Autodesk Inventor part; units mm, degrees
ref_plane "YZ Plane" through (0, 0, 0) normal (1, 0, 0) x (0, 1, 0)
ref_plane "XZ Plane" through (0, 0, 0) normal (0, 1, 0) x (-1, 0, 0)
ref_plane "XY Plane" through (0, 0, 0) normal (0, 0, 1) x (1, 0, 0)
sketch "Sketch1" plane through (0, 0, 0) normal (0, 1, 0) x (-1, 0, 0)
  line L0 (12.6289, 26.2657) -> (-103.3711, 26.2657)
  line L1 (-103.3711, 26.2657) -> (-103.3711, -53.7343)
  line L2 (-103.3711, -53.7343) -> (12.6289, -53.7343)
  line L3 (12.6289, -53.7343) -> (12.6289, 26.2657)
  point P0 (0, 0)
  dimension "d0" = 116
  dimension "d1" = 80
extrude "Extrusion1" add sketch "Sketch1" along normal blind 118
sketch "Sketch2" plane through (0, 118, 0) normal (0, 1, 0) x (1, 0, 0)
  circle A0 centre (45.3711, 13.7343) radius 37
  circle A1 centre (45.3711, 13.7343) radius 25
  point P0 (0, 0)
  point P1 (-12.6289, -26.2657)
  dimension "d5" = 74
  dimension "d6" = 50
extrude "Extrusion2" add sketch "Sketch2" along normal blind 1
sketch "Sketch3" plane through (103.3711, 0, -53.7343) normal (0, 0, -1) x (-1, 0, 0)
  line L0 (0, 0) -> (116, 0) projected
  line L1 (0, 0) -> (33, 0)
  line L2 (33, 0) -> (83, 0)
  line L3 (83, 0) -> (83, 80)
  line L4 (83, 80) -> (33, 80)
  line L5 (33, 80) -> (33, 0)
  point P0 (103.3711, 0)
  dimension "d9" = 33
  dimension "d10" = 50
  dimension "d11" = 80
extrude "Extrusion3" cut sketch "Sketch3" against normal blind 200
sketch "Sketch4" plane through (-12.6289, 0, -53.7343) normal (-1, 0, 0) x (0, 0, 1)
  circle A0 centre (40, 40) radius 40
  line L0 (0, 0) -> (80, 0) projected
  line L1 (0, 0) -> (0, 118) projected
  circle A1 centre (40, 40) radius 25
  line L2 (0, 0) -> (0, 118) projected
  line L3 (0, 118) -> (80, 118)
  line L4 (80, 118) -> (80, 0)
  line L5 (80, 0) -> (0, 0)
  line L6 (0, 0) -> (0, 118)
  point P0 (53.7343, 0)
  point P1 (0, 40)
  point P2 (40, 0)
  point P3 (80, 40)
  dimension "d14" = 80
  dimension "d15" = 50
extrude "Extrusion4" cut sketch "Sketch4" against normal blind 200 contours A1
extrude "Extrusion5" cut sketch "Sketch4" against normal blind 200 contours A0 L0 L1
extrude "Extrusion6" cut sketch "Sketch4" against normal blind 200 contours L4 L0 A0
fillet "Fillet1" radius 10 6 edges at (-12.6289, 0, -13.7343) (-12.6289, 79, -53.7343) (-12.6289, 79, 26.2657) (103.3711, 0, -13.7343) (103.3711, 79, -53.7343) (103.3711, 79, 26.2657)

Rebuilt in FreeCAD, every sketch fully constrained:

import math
import FreeCAD as App
import Part
import Sketcher
from FreeCAD import Vector
Q = App.Units.Quantity


def edges_at(feature, points):
    """Names of the edges that pass closest to the given points."""
    edges = feature.Shape.Edges
    near = lambda p: min(range(len(edges)), key=lambda i: edges[i].distToShape(Part.Vertex(*p))[0])
    return sorted({f"Edge{near(p) + 1}" for p in points})

doc = App.newDocument("Part")
body = doc.addObject("PartDesign::Body", "Body")

# Sketch on XZ plane
sketch1 = body.newObject("Sketcher::SketchObject", "Sketch")
sketch1.AttachmentSupport = (doc.getObject("XZ_Plane"), [""])
sketch1.MapMode = "FlatFace"
sketch1.addGeometry([
    Part.LineSegment(Vector(-13, -54, 0), Vector(-13, 26, 0)),
    Part.LineSegment(Vector(-13, 26, 0), Vector(103, 26, 0)),
    Part.LineSegment(Vector(103, 26, 0), Vector(103, -54, 0)),
    Part.LineSegment(Vector(103, -54, 0), Vector(-13, -54, 0)),
], False)
sketch1.addConstraint([
    Sketcher.Constraint("Coincident", 0, 2, 1, 1),
    Sketcher.Constraint("Coincident", 1, 2, 2, 1),
    Sketcher.Constraint("Coincident", 2, 2, 3, 1),
    Sketcher.Constraint("Coincident", 3, 2, 0, 1),
    Sketcher.Constraint("Vertical", 0),
    Sketcher.Constraint("Horizontal", 1),
    Sketcher.Constraint("Vertical", 2),
    Sketcher.Constraint("Horizontal", 3),
    Sketcher.Constraint("DistanceX", 1, 1, 1, 2, Q("116 mm")),
    Sketcher.Constraint("DistanceY", 0, 1, 0, 2, Q("80 mm")),
    Sketcher.Constraint("DistanceX", 0, 2, -1, 1, Q("12.629 mm")),
    Sketcher.Constraint("DistanceY", -1, 1, 0, 2, Q("26.2657 mm")),
])
pad1 = body.newObject("PartDesign::Pad", "Pad")
pad1.Profile = sketch1
pad1.Length = 118
pad1.Reversed = True

# Sketch on XZ plane
sketch2 = body.newObject("Sketcher::SketchObject", "Sketch001")
sketch2.AttachmentSupport = (doc.getObject("XZ_Plane"), [""])
sketch2.MapMode = "FlatFace"
sketch2.AttachmentOffset = App.Placement(Vector(0, 0, -118), App.Rotation())
sketch2.addGeometry([
    Part.Circle(Vector(45, -14, 0), Vector(0, 0, 1), 37),
    Part.Circle(Vector(45, -14, 0), Vector(0, 0, 1), 25),
], False)
sketch2.addConstraint([
    Sketcher.Constraint("Coincident", 1, 3, 0, 3),
    Sketcher.Constraint("Diameter", 0, Q("74 mm")),
    Sketcher.Constraint("Diameter", 1, Q("50 mm")),
    Sketcher.Constraint("DistanceX", -1, 1, 0, 3, Q("45.371 mm")),
    Sketcher.Constraint("DistanceY", 0, 3, -1, 1, Q("13.7343 mm")),
])
pad2 = body.newObject("PartDesign::Pad", "Pad001")
pad2.Profile = sketch2
pad2.Length = 1
pad2.Reversed = True

# Sketch on XY plane
sketch3 = body.newObject("Sketcher::SketchObject", "Sketch002")
sketch3.AttachmentSupport = (doc.getObject("XY_Plane"), [""])
sketch3.MapMode = "FlatFace"
sketch3.AttachmentOffset = App.Placement(Vector(0, 0, -53.7343), App.Rotation())
sketch3.addGeometry([
    Part.LineSegment(Vector(70, 80, 0), Vector(70, 0, 0)),
    Part.LineSegment(Vector(70, 0, 0), Vector(20, 0, 0)),
    Part.LineSegment(Vector(20, 0, 0), Vector(20, 80, 0)),
    Part.LineSegment(Vector(20, 80, 0), Vector(70, 80, 0)),
], False)
sketch3.addConstraint([
    Sketcher.Constraint("Coincident", 0, 2, 1, 1),
    Sketcher.Constraint("Coincident", 1, 2, 2, 1),
    Sketcher.Constraint("Coincident", 2, 2, 3, 1),
    Sketcher.Constraint("Coincident", 3, 2, 0, 1),
    Sketcher.Constraint("Vertical", 0),
    Sketcher.Constraint("Horizontal", 1),
    Sketcher.Constraint("Vertical", 2),
    Sketcher.Constraint("Horizontal", 3),
    Sketcher.Constraint("PointOnObject", 0, 2, -1),
    Sketcher.Constraint("DistanceX", 1, 2, 1, 1, Q("50 mm")),
    Sketcher.Constraint("DistanceY", 0, 2, 0, 1, Q("80 mm")),
    Sketcher.Constraint("DistanceX", -1, 1, 0, 2, Q("70.371 mm")),
])
pocket1 = body.newObject("PartDesign::Pocket", "Pocket")
pocket1.Profile = sketch3
pocket1.Length = 200
pocket1.Reversed = True

# Sketch on YZ plane
sketch4 = body.newObject("Sketcher::SketchObject", "Sketch003")
sketch4.AttachmentSupport = (doc.getObject("YZ_Plane"), [""])
sketch4.MapMode = "FlatFace"
sketch4.AttachmentOffset = App.Placement(Vector(0, 0, -12.6289), App.Rotation())
sketch4.addGeometry(Part.Circle(Vector(40, -14, 0), Vector(0, 0, 1), 25), False)
sketch4.addConstraint([
    Sketcher.Constraint("Diameter", 0, Q("50 mm")),
    Sketcher.Constraint("DistanceX", -1, 1, 0, 3, Q("40 mm")),
    Sketcher.Constraint("DistanceY", 0, 3, -1, 1, Q("13.7343 mm")),
])
pocket2 = body.newObject("PartDesign::Pocket", "Pocket001")
pocket2.Profile = sketch4
pocket2.Length = 200
pocket2.Reversed = True

# Sketch on YZ plane
sketch5 = body.newObject("Sketcher::SketchObject", "Sketch004")
sketch5.AttachmentSupport = (doc.getObject("YZ_Plane"), [""])
sketch5.MapMode = "FlatFace"
sketch5.AttachmentOffset = App.Placement(Vector(0, 0, -12.6289), App.Rotation())
sketch5.addGeometry([
    Part.ArcOfCircle(Part.Circle(Vector(40, -14, 0), Vector(0, 0, 1), 40), math.radians(180), math.radians(270)),
    Part.LineSegment(Vector(40, -54, 0), Vector(0, -54, 0)),
    Part.LineSegment(Vector(0, -54, 0), Vector(0, -14, 0)),
], False)
sketch5.addConstraint([
    Sketcher.Constraint("Tangent", 0, 2, 1, 1),
    Sketcher.Constraint("Coincident", 1, 2, 2, 1),
    Sketcher.Constraint("Tangent", 2, 2, 0, 1),
    Sketcher.Constraint("Horizontal", 1),
    Sketcher.Constraint("Vertical", 2),
    Sketcher.Constraint("PointOnObject", 1, 2, -2),
    Sketcher.Constraint("Radius", 0, Q("40 mm")),
    Sketcher.Constraint("DistanceY", 0, 3, -1, 1, Q("13.7343 mm")),
])
pocket3 = body.newObject("PartDesign::Pocket", "Pocket002")
pocket3.Profile = sketch5
pocket3.Length = 200
pocket3.Reversed = True

# Sketch on YZ plane
sketch6 = body.newObject("Sketcher::SketchObject", "Sketch005")
sketch6.AttachmentSupport = (doc.getObject("YZ_Plane"), [""])
sketch6.MapMode = "FlatFace"
sketch6.AttachmentOffset = App.Placement(Vector(0, 0, -12.6289), App.Rotation())
sketch6.addGeometry([
    Part.LineSegment(Vector(0, 26, 0), Vector(40, 26, 0)),
    Part.ArcOfCircle(Part.Circle(Vector(40, -14, 0), Vector(0, 0, 1), 40), math.radians(90), math.radians(180)),
    Part.LineSegment(Vector(0, -14, 0), Vector(0, 26, 0)),
], False)
sketch6.addConstraint([
    Sketcher.Constraint("Tangent", 0, 2, 1, 1),
    Sketcher.Constraint("Tangent", 1, 2, 2, 1),
    Sketcher.Constraint("Coincident", 2, 2, 0, 1),
    Sketcher.Constraint("Horizontal", 0),
    Sketcher.Constraint("Vertical", 2),
    Sketcher.Constraint("PointOnObject", 1, 2, -2),
    Sketcher.Constraint("Radius", 1, Q("40 mm")),
    Sketcher.Constraint("DistanceY", 1, 3, -1, 1, Q("13.7343 mm")),
])
pocket4 = body.newObject("PartDesign::Pocket", "Pocket003")
pocket4.Profile = sketch6
pocket4.Length = 200
pocket4.Reversed = True
doc.recompute()

fillet = body.newObject("PartDesign::Fillet", "Fillet")
fillet.Base = (pocket4, edges_at(pocket4, [
    (-12.629, 0, -13.734),
    (-12.629, 79, -53.734),
    (-12.629, 79, 26.266),
    (103.371, 0, -13.734),
    (103.371, 79, -53.734),
    (103.371, 79, 26.266),
]))
fillet.Radius = 10

doc.recompute()
